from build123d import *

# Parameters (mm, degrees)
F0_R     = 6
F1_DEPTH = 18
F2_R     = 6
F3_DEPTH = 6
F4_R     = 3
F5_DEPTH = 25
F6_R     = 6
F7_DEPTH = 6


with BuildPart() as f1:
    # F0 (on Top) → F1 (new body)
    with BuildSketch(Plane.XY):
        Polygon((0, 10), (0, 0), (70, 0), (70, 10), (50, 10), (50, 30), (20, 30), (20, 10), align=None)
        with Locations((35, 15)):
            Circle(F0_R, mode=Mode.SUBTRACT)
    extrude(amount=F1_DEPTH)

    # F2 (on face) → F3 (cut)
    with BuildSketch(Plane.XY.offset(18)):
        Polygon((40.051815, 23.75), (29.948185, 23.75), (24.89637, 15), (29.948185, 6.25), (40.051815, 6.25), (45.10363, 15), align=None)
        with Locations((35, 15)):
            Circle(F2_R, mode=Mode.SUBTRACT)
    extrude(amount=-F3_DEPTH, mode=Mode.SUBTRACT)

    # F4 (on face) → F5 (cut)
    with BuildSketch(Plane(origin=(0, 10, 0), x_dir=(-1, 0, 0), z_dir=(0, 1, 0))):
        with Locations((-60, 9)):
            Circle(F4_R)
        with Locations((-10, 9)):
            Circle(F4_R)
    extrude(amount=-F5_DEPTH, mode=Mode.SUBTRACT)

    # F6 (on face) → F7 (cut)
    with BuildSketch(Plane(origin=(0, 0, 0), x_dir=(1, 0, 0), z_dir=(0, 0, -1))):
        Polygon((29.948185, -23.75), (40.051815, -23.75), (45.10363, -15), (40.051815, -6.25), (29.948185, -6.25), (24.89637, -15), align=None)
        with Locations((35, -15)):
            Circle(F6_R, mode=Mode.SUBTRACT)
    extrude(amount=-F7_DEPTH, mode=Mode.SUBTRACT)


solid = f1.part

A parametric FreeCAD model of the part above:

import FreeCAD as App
import Part
import Sketcher
Q = App.Units.Quantity

doc = App.newDocument("Part")
body = doc.addObject("PartDesign::Body", "Body")

# Sketch on XY plane
sketch1 = body.newObject("Sketcher::SketchObject", "Sketch")
sketch1.AttachmentSupport = (doc.getObject("XY_Plane"), [""])
sketch1.MapMode = "FlatFace"
sketch1.addGeometry(Part.LineSegment(App.Vector(0, 10, 0), App.Vector(0, 0, 0)), False)
sketch1.addGeometry(Part.LineSegment(App.Vector(0, 0, 0), App.Vector(70, 0, 0)), False)
sketch1.addGeometry(Part.LineSegment(App.Vector(70, 0, 0), App.Vector(70, 10, 0)), False)
sketch1.addGeometry(Part.LineSegment(App.Vector(70, 10, 0), App.Vector(50, 10, 0)), False)
sketch1.addGeometry(Part.LineSegment(App.Vector(50, 10, 0), App.Vector(50, 30, 0)), False)
sketch1.addGeometry(Part.LineSegment(App.Vector(50, 30, 0), App.Vector(20, 30, 0)), False)
sketch1.addGeometry(Part.LineSegment(App.Vector(20, 30, 0), App.Vector(20, 10, 0)), False)
sketch1.addGeometry(Part.LineSegment(App.Vector(20, 10, 0), App.Vector(0, 10, 0)), False)
sketch1.addGeometry(Part.Circle(App.Vector(35, 15, 0), App.Vector(0, 0, 1), 6), False)
sketch1.addConstraint(Sketcher.Constraint("Coincident", 0, 2, 1, 1))
sketch1.addConstraint(Sketcher.Constraint("Coincident", 1, 2, 2, 1))
sketch1.addConstraint(Sketcher.Constraint("Coincident", 2, 2, 3, 1))
sketch1.addConstraint(Sketcher.Constraint("Coincident", 3, 2, 4, 1))
sketch1.addConstraint(Sketcher.Constraint("Coincident", 4, 2, 5, 1))
sketch1.addConstraint(Sketcher.Constraint("Coincident", 5, 2, 6, 1))
sketch1.addConstraint(Sketcher.Constraint("Coincident", 6, 2, 7, 1))
sketch1.addConstraint(Sketcher.Constraint("Coincident", 7, 2, 0, 1))
sketch1.addConstraint(Sketcher.Constraint("Vertical", 0))
sketch1.addConstraint(Sketcher.Constraint("Horizontal", 1))
sketch1.addConstraint(Sketcher.Constraint("Vertical", 2))
sketch1.addConstraint(Sketcher.Constraint("Horizontal", 3))
sketch1.addConstraint(Sketcher.Constraint("Vertical", 4))
sketch1.addConstraint(Sketcher.Constraint("Horizontal", 5))
sketch1.addConstraint(Sketcher.Constraint("Vertical", 6))
sketch1.addConstraint(Sketcher.Constraint("Horizontal", 7))
sketch1.addConstraint(Sketcher.Constraint("Coincident", 0, 2, -1, 1))
sketch1.addConstraint(Sketcher.Constraint("Horizontal", 3, 2, 6, 2))
sketch1.addConstraint(Sketcher.Constraint("Equal", 3, 7))
sketch1.addConstraint(Sketcher.Constraint("Equal", 7, 4))
sketch1.addConstraint(Sketcher.Constraint("Diameter", 8, 12.0))
sketch1.addConstraint(Sketcher.Constraint("DistanceX", 1, 1, 1, 2, 70.0))
sketch1.addConstraint(Sketcher.Constraint("DistanceX", 3, 2, 3, 1, 20.0))
sketch1.addConstraint(Sketcher.Constraint("DistanceY", 0, 2, 0, 1, 10.0))
sketch1.addConstraint(Sketcher.Constraint("DistanceX", -1, 1, 8, 3, 35.0))
sketch1.addConstraint(Sketcher.Constraint("DistanceY", -1, 1, 8, 3, 15.0))
pad1 = body.newObject("PartDesign::Pad", "Pad")
pad1.Profile = sketch1
pad1.Length = 18

# Sketch on XY plane
sketch2 = body.newObject("Sketcher::SketchObject", "Sketch001")
sketch2.AttachmentSupport = (doc.getObject("XY_Plane"), [""])
sketch2.MapMode = "FlatFace"
sketch2.AttachmentOffset = App.Placement(App.Vector(0, 0, 18), App.Rotation())
sketch2.addGeometry(Part.LineSegment(App.Vector(40, 24, 0), App.Vector(30, 24, 0)), False)
sketch2.addGeometry(Part.LineSegment(App.Vector(30, 24, 0), App.Vector(25, 15, 0)), False)
sketch2.addGeometry(Part.LineSegment(App.Vector(25, 15, 0), App.Vector(30, 6, 0)), False)
sketch2.addGeometry(Part.LineSegment(App.Vector(30, 6, 0), App.Vector(40, 6, 0)), False)
sketch2.addGeometry(Part.LineSegment(App.Vector(40, 6, 0), App.Vector(45, 15, 0)), False)
sketch2.addGeometry(Part.LineSegment(App.Vector(45, 15, 0), App.Vector(40, 24, 0)), False)
sketch2.addGeometry(Part.Circle(App.Vector(35, 15, 0), App.Vector(0, 0, 1), 6), False)
sketch2.addConstraint(Sketcher.Constraint("Coincident", 0, 2, 1, 1))
sketch2.addConstraint(Sketcher.Constraint("Coincident", 1, 2, 2, 1))
sketch2.addConstraint(Sketcher.Constraint("Coincident", 2, 2, 3, 1))
sketch2.addConstraint(Sketcher.Constraint("Coincident", 3, 2, 4, 1))
sketch2.addConstraint(Sketcher.Constraint("Coincident", 4, 2, 5, 1))
sketch2.addConstraint(Sketcher.Constraint("Coincident", 5, 2, 0, 1))
sketch2.addConstraint(Sketcher.Constraint("Horizontal", 0))
sketch2.addConstraint(Sketcher.Constraint("Horizontal", 3))
sketch2.addConstraint(Sketcher.Constraint("Parallel", 1, 4))
sketch2.addConstraint(Sketcher.Constraint("Parallel", 2, 5))
sketch2.addConstraint(Sketcher.Constraint("Horizontal", 6, 3, 1, 2))
sketch2.addConstraint(Sketcher.Constraint("Horizontal", 1, 2, 4, 2))
sketch2.addConstraint(Sketcher.Constraint("Vertical", 0, 2, 2, 2))
sketch2.addConstraint(Sketcher.Constraint("Vertical", 3, 2, 5, 2))
sketch2.addConstraint(Sketcher.Constraint("Diameter", 6, 12.0))
sketch2.addConstraint(Sketcher.Constraint("Angle", 1, Q("-120.000001 deg")))
sketch2.addConstraint(Sketcher.Constraint("DistanceX", -1, 1, 6, 3, 35.0))
sketch2.addConstraint(Sketcher.Constraint("DistanceY", -1, 1, 6, 3, 15.0))
sketch2.addConstraint(Sketcher.Constraint("DistanceY", 2, 2, 0, 2, 17.5))
sketch2.addConstraint(Sketcher.Constraint("DistanceX", 0, 2, 0, 1, 10.10363))
sketch2.addConstraint(Sketcher.Constraint("DistanceX", -1, 1, 1, 2, 24.89637))
pocket1 = body.newObject("PartDesign::Pocket", "Pocket")
pocket1.Profile = sketch2
pocket1.Length = 6

# Sketch on XZ plane
sketch3 = body.newObject("Sketcher::SketchObject", "Sketch002")
sketch3.AttachmentSupport = (doc.getObject("XZ_Plane"), [""])
sketch3.MapMode = "FlatFace"
sketch3.AttachmentOffset = App.Placement(App.Vector(0, 0, -10), App.Rotation())
sketch3.addGeometry(Part.Circle(App.Vector(60, 9, 0), App.Vector(0, 0, 1), 3), False)
sketch3.addGeometry(Part.Circle(App.Vector(10, 9, 0), App.Vector(0, 0, 1), 3), False)
sketch3.addConstraint(Sketcher.Constraint("Equal", 0, 1))
sketch3.addConstraint(Sketcher.Constraint("Horizontal", 0, 3, 1, 3))
sketch3.addConstraint(Sketcher.Constraint("Diameter", 0, 6.0))
sketch3.addConstraint(Sketcher.Constraint("DistanceX", -1, 1, 0, 3, 60.0))
sketch3.addConstraint(Sketcher.Constraint("DistanceY", -1, 1, 0, 3, 9.0))
sketch3.addConstraint(Sketcher.Constraint("DistanceX", -1, 1, 1, 3, 10.0))
pocket2 = body.newObject("PartDesign::Pocket", "Pocket001")
pocket2.Profile = sketch3
pocket2.Length = 25
pocket2.Reversed = True

# Sketch on XY plane
sketch4 = body.newObject("Sketcher::SketchObject", "Sketch003")
sketch4.AttachmentSupport = (doc.getObject("XY_Plane"), [""])
sketch4.MapMode = "FlatFace"
sketch4.addGeometry(Part.LineSegment(App.Vector(30, 24, 0), App.Vector(40, 24, 0)), False)
sketch4.addGeometry(Part.LineSegment(App.Vector(40, 24, 0), App.Vector(45, 15, 0)), False)
sketch4.addGeometry(Part.LineSegment(App.Vector(45, 15, 0), App.Vector(40, 6, 0)), False)
sketch4.addGeometry(Part.LineSegment(App.Vector(40, 6, 0), App.Vector(30, 6, 0)), False)
sketch4.addGeometry(Part.LineSegment(App.Vector(30, 6, 0), App.Vector(25, 15, 0)), False)
sketch4.addGeometry(Part.LineSegment(App.Vector(25, 15, 0), App.Vector(30, 24, 0)), False)
sketch4.addGeometry(Part.Circle(App.Vector(35, 15, 0), App.Vector(0, 0, 1), 6), False)
sketch4.addConstraint(Sketcher.Constraint("Coincident", 0, 2, 1, 1))
sketch4.addConstraint(Sketcher.Constraint("Coincident", 1, 2, 2, 1))
sketch4.addConstraint(Sketcher.Constraint("Coincident", 2, 2, 3, 1))
sketch4.addConstraint(Sketcher.Constraint("Coincident", 3, 2, 4, 1))
sketch4.addConstraint(Sketcher.Constraint("Coincident", 4, 2, 5, 1))
sketch4.addConstraint(Sketcher.Constraint("Coincident", 5, 2, 0, 1))
sketch4.addConstraint(Sketcher.Constraint("Horizontal", 0))
sketch4.addConstraint(Sketcher.Constraint("Horizontal", 3))
sketch4.addConstraint(Sketcher.Constraint("Parallel", 1, 4))
sketch4.addConstraint(Sketcher.Constraint("Parallel", 2, 5))
sketch4.addConstraint(Sketcher.Constraint("Horizontal", 6, 3, 1, 2))
sketch4.addConstraint(Sketcher.Constraint("Horizontal", 1, 2, 4, 2))
sketch4.addConstraint(Sketcher.Constraint("Vertical", 0, 2, 2, 2))
sketch4.addConstraint(Sketcher.Constraint("Vertical", 3, 2, 5, 2))
sketch4.addConstraint(Sketcher.Constraint("Diameter", 6, 12.0))
sketch4.addConstraint(Sketcher.Constraint("Angle", 1, Q("-59.999999 deg")))
sketch4.addConstraint(Sketcher.Constraint("DistanceX", -1, 1, 6, 3, 35.0))
sketch4.addConstraint(Sketcher.Constraint("DistanceY", -1, 1, 6, 3, 15.0))
sketch4.addConstraint(Sketcher.Constraint("DistanceY", 2, 2, 0, 2, 17.5))
sketch4.addConstraint(Sketcher.Constraint("DistanceX", 0, 1, 0, 2, 10.10363))
sketch4.addConstraint(Sketcher.Constraint("DistanceX", -1, 1, 1, 2, 45.10363))
pocket3 = body.newObject("PartDesign::Pocket", "Pocket002")
pocket3.Profile = sketch4
pocket3.Length = 6
pocket3.Reversed = True

doc.recompute()
